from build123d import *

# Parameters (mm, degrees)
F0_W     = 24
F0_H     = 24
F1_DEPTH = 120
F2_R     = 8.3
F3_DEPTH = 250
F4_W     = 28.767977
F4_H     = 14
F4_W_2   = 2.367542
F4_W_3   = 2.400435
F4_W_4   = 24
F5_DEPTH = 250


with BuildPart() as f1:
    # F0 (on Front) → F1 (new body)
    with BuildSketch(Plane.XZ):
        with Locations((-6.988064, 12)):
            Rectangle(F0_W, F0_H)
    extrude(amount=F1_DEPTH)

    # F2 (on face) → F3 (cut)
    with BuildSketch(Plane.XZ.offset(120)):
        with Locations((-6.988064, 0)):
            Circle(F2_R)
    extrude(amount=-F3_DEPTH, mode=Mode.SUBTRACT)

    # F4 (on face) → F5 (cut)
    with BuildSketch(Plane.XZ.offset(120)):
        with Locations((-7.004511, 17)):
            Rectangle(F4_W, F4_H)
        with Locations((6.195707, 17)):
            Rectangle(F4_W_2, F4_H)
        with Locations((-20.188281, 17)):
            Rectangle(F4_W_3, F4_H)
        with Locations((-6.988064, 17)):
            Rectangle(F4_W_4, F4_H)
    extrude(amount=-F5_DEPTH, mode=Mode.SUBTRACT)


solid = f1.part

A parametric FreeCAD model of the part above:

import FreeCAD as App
import Part
import Sketcher
Q = App.Units.Quantity


def add_polygon(sketch, points):
    """Adds a closed chain of lines whose ends are joined by coincident constraints."""
    first, n = sketch.GeometryCount, len(points)
    for a, b in zip(points, points[1:] + points[:1]):
        sketch.addGeometry(Part.LineSegment(App.Vector(*a, 0), App.Vector(*b, 0)), False)
    for i in range(n):
        sketch.addConstraint(Sketcher.Constraint("Coincident", first + i, 2, first + (i + 1) % n, 1))

doc = App.newDocument("Part")
body = doc.addObject("PartDesign::Body", "Body")

sketch1 = doc.addObject("Sketcher::SketchObject", "Sketch")
body.addObject(sketch1)
sketch1.AttachmentSupport = (doc.XZ_Plane, [""])
sketch1.MapMode = "FlatFace"
add_polygon(sketch1, [(-18.988064, 24), (-18.988064, 0), (5.011936, 0), (5.011936, 24)])
sketch1.addConstraint(Sketcher.Constraint("Vertical", 0))
sketch1.addConstraint(Sketcher.Constraint("Horizontal", 1))
sketch1.addConstraint(Sketcher.Constraint("Vertical", 2))
sketch1.addConstraint(Sketcher.Constraint("Horizontal", 3))
sketch1.addConstraint(Sketcher.Constraint("PointOnObject", 0, 2, -1))
sketch1.addConstraint(Sketcher.Constraint("Equal", 3, 0))
sketch1.addConstraint(Sketcher.Constraint("DistanceX", 1, 1, 1, 2, Q("24 mm")))
sketch1.addConstraint(Sketcher.Constraint("DistanceX", 0, 2, -1, 1, Q("18.988064 mm")))
pad1 = doc.addObject("PartDesign::Pad", "Pad")
body.addObject(pad1)
pad1.Profile = sketch1
pad1.Length = 120

sketch2 = doc.addObject("Sketcher::SketchObject", "Sketch001")
body.addObject(sketch2)
sketch2.AttachmentSupport = (doc.XZ_Plane, [""])
sketch2.MapMode = "FlatFace"
sketch2.AttachmentOffset = App.Placement(App.Vector(0, 0, 120), App.Rotation())
sketch2.addGeometry(Part.Circle(App.Vector(-6.988064, 0, 0), App.Vector(0, 0, 1), 8.3), False)
sketch2.addConstraint(Sketcher.Constraint("PointOnObject", 0, 3, -1))
sketch2.addConstraint(Sketcher.Constraint("Diameter", 0, Q("16.6 mm")))
sketch2.addConstraint(Sketcher.Constraint("DistanceX", 0, 3, -1, 1, Q("6.988064 mm")))
pocket1 = doc.addObject("PartDesign::Pocket", "Pocket")
body.addObject(pocket1)
pocket1.Profile = sketch2
pocket1.Length = 250

sketch3 = doc.addObject("Sketcher::SketchObject", "Sketch002")
body.addObject(sketch3)
sketch3.AttachmentSupport = (doc.XZ_Plane, [""])
sketch3.MapMode = "FlatFace"
sketch3.AttachmentOffset = App.Placement(App.Vector(0, 0, 120), App.Rotation())
add_polygon(sketch3, [(-21.3885, 24), (-21.3885, 10), (7.379478, 10), (7.379478, 24)])
sketch3.addConstraint(Sketcher.Constraint("Vertical", 0))
sketch3.addConstraint(Sketcher.Constraint("Horizontal", 1))
sketch3.addConstraint(Sketcher.Constraint("Vertical", 2))
sketch3.addConstraint(Sketcher.Constraint("Horizontal", 3))
sketch3.addConstraint(Sketcher.Constraint("DistanceY", 0, 2, 0, 1, Q("14 mm")))
sketch3.addConstraint(Sketcher.Constraint("DistanceY", -1, 1, 0, 2, Q("10 mm")))
sketch3.addConstraint(Sketcher.Constraint("DistanceX", 0, 2, -1, 1, Q("21.3885 mm")))
sketch3.addConstraint(Sketcher.Constraint("DistanceX", 1, 1, 1, 2, Q("28.767978 mm")))
pocket2 = doc.addObject("PartDesign::Pocket", "Pocket001")
body.addObject(pocket2)
pocket2.Profile = sketch3
pocket2.Length = 250

doc.recompute()
